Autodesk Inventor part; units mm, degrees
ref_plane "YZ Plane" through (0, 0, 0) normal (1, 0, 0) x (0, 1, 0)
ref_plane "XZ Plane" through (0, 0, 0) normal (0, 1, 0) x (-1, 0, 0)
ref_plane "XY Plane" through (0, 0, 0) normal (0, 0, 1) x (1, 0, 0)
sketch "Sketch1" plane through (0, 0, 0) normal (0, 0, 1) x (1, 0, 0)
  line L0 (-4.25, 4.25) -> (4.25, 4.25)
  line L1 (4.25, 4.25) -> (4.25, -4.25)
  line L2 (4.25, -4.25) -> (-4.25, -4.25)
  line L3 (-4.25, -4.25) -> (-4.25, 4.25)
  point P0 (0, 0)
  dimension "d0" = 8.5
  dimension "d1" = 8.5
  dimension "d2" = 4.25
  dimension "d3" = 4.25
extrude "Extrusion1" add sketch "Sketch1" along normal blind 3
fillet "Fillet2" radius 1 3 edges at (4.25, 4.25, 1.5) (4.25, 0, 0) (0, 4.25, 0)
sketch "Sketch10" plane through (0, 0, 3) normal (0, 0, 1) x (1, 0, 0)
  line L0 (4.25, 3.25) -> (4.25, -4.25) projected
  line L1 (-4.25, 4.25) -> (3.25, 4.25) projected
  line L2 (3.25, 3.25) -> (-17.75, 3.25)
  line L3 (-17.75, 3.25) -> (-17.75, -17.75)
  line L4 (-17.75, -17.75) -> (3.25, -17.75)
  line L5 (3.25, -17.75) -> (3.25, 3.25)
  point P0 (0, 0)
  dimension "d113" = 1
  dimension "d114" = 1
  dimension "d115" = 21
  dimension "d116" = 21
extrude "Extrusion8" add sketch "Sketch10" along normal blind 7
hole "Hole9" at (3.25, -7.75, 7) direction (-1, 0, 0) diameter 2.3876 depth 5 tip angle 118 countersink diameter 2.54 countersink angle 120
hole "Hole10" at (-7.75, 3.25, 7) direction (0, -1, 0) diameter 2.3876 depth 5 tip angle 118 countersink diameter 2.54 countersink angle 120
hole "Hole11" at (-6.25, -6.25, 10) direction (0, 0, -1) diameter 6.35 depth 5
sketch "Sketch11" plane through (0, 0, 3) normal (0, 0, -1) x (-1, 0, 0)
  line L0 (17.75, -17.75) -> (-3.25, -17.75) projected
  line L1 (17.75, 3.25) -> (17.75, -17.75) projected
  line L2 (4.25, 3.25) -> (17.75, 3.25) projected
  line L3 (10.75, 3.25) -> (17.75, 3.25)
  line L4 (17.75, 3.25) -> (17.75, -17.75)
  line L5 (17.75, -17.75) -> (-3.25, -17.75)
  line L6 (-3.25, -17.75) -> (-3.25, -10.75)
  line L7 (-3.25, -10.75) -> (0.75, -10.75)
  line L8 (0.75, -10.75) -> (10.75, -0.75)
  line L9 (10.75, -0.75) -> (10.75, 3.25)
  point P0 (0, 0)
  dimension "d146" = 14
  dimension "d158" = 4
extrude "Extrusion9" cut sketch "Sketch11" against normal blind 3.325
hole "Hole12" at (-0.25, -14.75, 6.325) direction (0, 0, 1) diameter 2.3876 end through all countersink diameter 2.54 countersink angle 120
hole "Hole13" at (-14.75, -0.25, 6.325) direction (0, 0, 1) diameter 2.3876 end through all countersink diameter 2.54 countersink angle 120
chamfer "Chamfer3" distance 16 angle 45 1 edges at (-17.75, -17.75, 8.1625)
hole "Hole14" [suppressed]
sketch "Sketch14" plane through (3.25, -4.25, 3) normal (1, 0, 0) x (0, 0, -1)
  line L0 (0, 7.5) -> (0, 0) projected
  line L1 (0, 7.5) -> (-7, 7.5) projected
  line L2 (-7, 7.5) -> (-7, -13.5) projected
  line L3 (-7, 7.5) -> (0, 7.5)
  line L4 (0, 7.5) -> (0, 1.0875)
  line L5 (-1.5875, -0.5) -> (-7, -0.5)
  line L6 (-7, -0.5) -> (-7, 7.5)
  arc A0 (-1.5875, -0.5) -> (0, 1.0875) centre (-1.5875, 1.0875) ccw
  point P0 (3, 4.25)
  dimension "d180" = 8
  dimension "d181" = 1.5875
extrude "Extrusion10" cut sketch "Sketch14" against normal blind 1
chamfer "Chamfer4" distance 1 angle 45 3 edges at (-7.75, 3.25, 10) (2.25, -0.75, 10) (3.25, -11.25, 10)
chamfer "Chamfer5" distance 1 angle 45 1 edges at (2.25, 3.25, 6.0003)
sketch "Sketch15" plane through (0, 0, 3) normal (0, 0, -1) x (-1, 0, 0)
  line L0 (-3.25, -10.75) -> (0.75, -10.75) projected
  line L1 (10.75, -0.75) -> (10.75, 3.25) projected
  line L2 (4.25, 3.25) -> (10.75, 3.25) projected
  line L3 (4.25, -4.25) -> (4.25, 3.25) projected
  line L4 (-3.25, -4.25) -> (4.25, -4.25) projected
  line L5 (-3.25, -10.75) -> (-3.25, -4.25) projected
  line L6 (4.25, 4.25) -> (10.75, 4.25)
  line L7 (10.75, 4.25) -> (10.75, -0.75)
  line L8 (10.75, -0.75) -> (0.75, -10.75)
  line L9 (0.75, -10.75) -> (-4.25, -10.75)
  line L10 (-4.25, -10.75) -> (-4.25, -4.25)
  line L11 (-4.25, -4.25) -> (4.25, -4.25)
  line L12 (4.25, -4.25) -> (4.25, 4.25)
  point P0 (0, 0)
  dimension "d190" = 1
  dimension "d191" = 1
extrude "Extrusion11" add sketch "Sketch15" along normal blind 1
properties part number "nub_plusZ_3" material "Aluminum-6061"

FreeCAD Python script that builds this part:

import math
import FreeCAD as App
import Part
import Sketcher

V = App.Vector


def edges_at(feature, points):
    """Names of the edges that pass closest to the given points."""
    edges = feature.Shape.Edges
    near = lambda p: min(range(len(edges)), key=lambda i: edges[i].distToShape(Part.Vertex(*p))[0])
    return sorted({f"Edge{near(p) + 1}" for p in points})


def add_polygon(sketch, points):
    """Adds a closed chain of lines whose ends are joined by coincident constraints."""
    first, n = sketch.GeometryCount, len(points)
    for a, b in zip(points, points[1:] + points[:1]):
        sketch.addGeometry(Part.LineSegment(App.Vector(*a, 0), App.Vector(*b, 0)), False)
    for i in range(n):
        sketch.addConstraint(Sketcher.Constraint("Coincident", first + i, 2, first + (i + 1) % n, 1))

doc = App.newDocument("Part")
body = doc.addObject("PartDesign::Body", "Body")

# Sketch on XY plane
sketch1 = body.newObject("Sketcher::SketchObject", "Sketch")
sketch1.AttachmentSupport = (doc.getObject("XY_Plane"), [""])
sketch1.MapMode = "FlatFace"
add_polygon(sketch1, [(4, 4), (-4, 4), (-4, -4), (4, -4)])  # lines 0-3
sketch1.addConstraint([
    Sketcher.Constraint("Horizontal", 0),
    Sketcher.Constraint("Vertical", 1),
    Sketcher.Constraint("Horizontal", 2),
    Sketcher.Constraint("Vertical", 3),
    Sketcher.Constraint("Symmetric", 0, 2, 2, 2, -1, 1),
    Sketcher.Constraint("Equal", 2, 1),
    Sketcher.Constraint("DistanceX", 0, 2, 0, 1, 8.5),
])
pad1 = body.newObject("PartDesign::Pad", "Pad")
pad1.Profile = sketch1
pad1.Length = 3
doc.recompute()

fillet = body.newObject("PartDesign::Fillet", "Fillet")
fillet.Base = (pad1, edges_at(pad1, [(4.25, 4.25, 1.5), (4.25, 0, 0), (0, 4.25, 0)]))
fillet.Radius = 1

# Sketch on XY plane
sketch2 = body.newObject("Sketcher::SketchObject", "Sketch001")
sketch2.AttachmentSupport = (doc.getObject("XY_Plane"), [""])
sketch2.MapMode = "FlatFace"
sketch2.AttachmentOffset = App.Placement(V(0, 0, 3), App.Rotation())
add_polygon(sketch2, [(3, -18), (3, 3), (-18, 3), (-18, -18)])  # lines 0-3
sketch2.addConstraint([
    Sketcher.Constraint("Vertical", 0),
    Sketcher.Constraint("Horizontal", 1),
    Sketcher.Constraint("Vertical", 2),
    Sketcher.Constraint("Horizontal", 3),
    Sketcher.Constraint("Equal", 3, 0),
    Sketcher.Constraint("DistanceX", 1, 2, 1, 1, 21.0),
    Sketcher.Constraint("DistanceX", -1, 1, 0, 2, 3.25),
    Sketcher.Constraint("DistanceY", -1, 1, 0, 2, 3.25),
])
pad2 = body.newObject("PartDesign::Pad", "Pad001")
pad2.Profile = sketch2
pad2.Length = 7

# Sketch on YZ plane
sketch3 = body.newObject("Sketcher::SketchObject", "Sketch002")
sketch3.AttachmentSupport = (doc.getObject("YZ_Plane"), [""])
sketch3.MapMode = "FlatFace"
sketch3.AttachmentOffset = App.Placement(V(0, 0, 3.25), App.Rotation())
sketch3.addGeometry(Part.Circle(V(-7.8, 7, 0), V(0, 0, 1), 1.2), False)
sketch3.addConstraint([
    Sketcher.Constraint("DistanceY", -1, 1, 0, 3, 7.0),
    Sketcher.Constraint("Diameter", 0, 2.3876),
    Sketcher.Constraint("DistanceX", 0, 3, -1, 1, 7.75),
])
doc.recompute()
hole = body.newObject("PartDesign::Hole", "Hole")
hole.Profile = sketch3
hole.ThreadType = "None"
hole.Diameter = 2.3876
hole.DepthType = "Dimension"
hole.Depth = 5
hole.DrillPoint = "Angled"
hole.DrillPointAngle = 118
hole.HoleCutType = "Countersink"
hole.HoleCutDiameter = 2.54
hole.HoleCutCountersinkAngle = 120

# Sketch on XZ plane
sketch4 = body.newObject("Sketcher::SketchObject", "Sketch003")
sketch4.AttachmentSupport = (doc.getObject("XZ_Plane"), [""])
sketch4.MapMode = "FlatFace"
sketch4.AttachmentOffset = App.Placement(V(0, 0, -3.25), App.Rotation())
sketch4.addGeometry(Part.Circle(V(-7.8, 7, 0), V(0, 0, 1), 1.2), False)
sketch4.addConstraint([
    Sketcher.Constraint("DistanceY", -1, 1, 0, 3, 7.0),
    Sketcher.Constraint("Diameter", 0, 2.3876),
    Sketcher.Constraint("DistanceX", 0, 3, -1, 1, 7.75),
])
doc.recompute()
hole2 = body.newObject("PartDesign::Hole", "Hole001")
hole2.Profile = sketch4
hole2.ThreadType = "None"
hole2.Diameter = 2.3876
hole2.DepthType = "Dimension"
hole2.Depth = 5
hole2.DrillPoint = "Angled"
hole2.DrillPointAngle = 118
hole2.HoleCutType = "Countersink"
hole2.HoleCutDiameter = 2.54
hole2.HoleCutCountersinkAngle = 120
hole2.Reversed = True

# Sketch on XY plane
sketch5 = body.newObject("Sketcher::SketchObject", "Sketch004")
sketch5.AttachmentSupport = (doc.getObject("XY_Plane"), [""])
sketch5.MapMode = "FlatFace"
sketch5.AttachmentOffset = App.Placement(V(0, 0, 10), App.Rotation())
sketch5.addGeometry(Part.Circle(V(-6.2, -6.2, 0), V(0, 0, 1), 3.2), False)
sketch5.addConstraint([
    Sketcher.Constraint("Diameter", 0, 6.35),
    Sketcher.Constraint("DistanceX", 0, 3, -1, 1, 6.25),
    Sketcher.Constraint("DistanceY", 0, 3, -1, 1, 6.25),
])
doc.recompute()
hole3 = body.newObject("PartDesign::Hole", "Hole002")
hole3.Profile = sketch5
hole3.ThreadType = "None"
hole3.Diameter = 6.35
hole3.DepthType = "Dimension"
hole3.Depth = 5
hole3.DrillPoint = "Flat"

# Sketch on XY plane
sketch6 = body.newObject("Sketcher::SketchObject", "Sketch005")
sketch6.AttachmentSupport = (doc.getObject("XY_Plane"), [""])
sketch6.MapMode = "FlatFace"
sketch6.AttachmentOffset = App.Placement(V(0, 0, 3), App.Rotation())
add_polygon(sketch6, [(3.2, -17.8), (-17.8, -17.8), (-17.8, 3.2), (-10.8, 3.2), (-10.8, -0.8), (-0.8, -10.8), (3.2, -10.8)])  # lines 0-6
sketch6.addConstraint([
    Sketcher.Constraint("Horizontal", 0),
    Sketcher.Constraint("Vertical", 1),
    Sketcher.Constraint("Horizontal", 2),
    Sketcher.Constraint("Vertical", 3),
    Sketcher.Constraint("Horizontal", 5),
    Sketcher.Constraint("Vertical", 6),
    Sketcher.Constraint("Equal", 0, 1),
    Sketcher.Constraint("Equal", 5, 3),
    Sketcher.Constraint("Equal", 2, 6),
    Sketcher.Constraint("DistanceX", 5, 1, 5, 2, 4.0),
    Sketcher.Constraint("DistanceY", 4, 2, 2, 2, 14.0),
    Sketcher.Constraint("DistanceX", 0, 2, 0, 1, 21.0),
    Sketcher.Constraint("DistanceX", 0, 2, -1, 1, 17.75),
    Sketcher.Constraint("DistanceY", 0, 2, -1, 1, 17.75),
])
pocket1 = body.newObject("PartDesign::Pocket", "Pocket")
pocket1.Profile = sketch6
pocket1.Length = 3.325
pocket1.Reversed = True

# Sketch on XY plane
sketch7 = body.newObject("Sketcher::SketchObject", "Sketch006")
sketch7.AttachmentSupport = (doc.getObject("XY_Plane"), [""])
sketch7.MapMode = "FlatFace"
sketch7.AttachmentOffset = App.Placement(V(0, 0, 6.325), App.Rotation())
sketch7.addGeometry(Part.Circle(V(-0.2, -14.8, 0), V(0, 0, 1), 1.2), False)
sketch7.addConstraint([
    Sketcher.Constraint("Diameter", 0, 2.3876),
    Sketcher.Constraint("DistanceX", 0, 3, -1, 1, 0.25),
    Sketcher.Constraint("DistanceY", 0, 3, -1, 1, 14.75),
])
doc.recompute()
hole4 = body.newObject("PartDesign::Hole", "Hole003")
hole4.Profile = sketch7
hole4.ThreadType = "None"
hole4.Diameter = 2.3876
hole4.DepthType = "ThroughAll"
hole4.HoleCutType = "Countersink"
hole4.HoleCutDiameter = 2.54
hole4.HoleCutCountersinkAngle = 120
hole4.Reversed = True

# Sketch on XY plane
sketch8 = body.newObject("Sketcher::SketchObject", "Sketch007")
sketch8.AttachmentSupport = (doc.getObject("XY_Plane"), [""])
sketch8.MapMode = "FlatFace"
sketch8.AttachmentOffset = App.Placement(V(0, 0, 6.325), App.Rotation())
sketch8.addGeometry(Part.Circle(V(-14.8, -0.2, 0), V(0, 0, 1), 1.2), False)
sketch8.addConstraint([
    Sketcher.Constraint("Diameter", 0, 2.3876),
    Sketcher.Constraint("DistanceX", 0, 3, -1, 1, 14.75),
    Sketcher.Constraint("DistanceY", 0, 3, -1, 1, 0.25),
])
doc.recompute()
hole5 = body.newObject("PartDesign::Hole", "Hole004")
hole5.Profile = sketch8
hole5.ThreadType = "None"
hole5.Diameter = 2.3876
hole5.DepthType = "ThroughAll"
hole5.HoleCutType = "Countersink"
hole5.HoleCutDiameter = 2.54
hole5.HoleCutCountersinkAngle = 120
hole5.Reversed = True
doc.recompute()

chamfer = body.newObject("PartDesign::Chamfer", "Chamfer")
chamfer.Base = (hole5, edges_at(hole5, [(-17.75, -17.75, 8.162)]))
chamfer.Size = 16

# Sketch on YZ plane
sketch9 = body.newObject("Sketcher::SketchObject", "Sketch008")
sketch9.AttachmentSupport = (doc.getObject("YZ_Plane"), [""])
sketch9.MapMode = "FlatFace"
sketch9.AttachmentOffset = App.Placement(V(0, 0, 3.25), App.Rotation())
sketch9.addGeometry([
    Part.LineSegment(V(-3.2, 3, 0), V(3.2, 3, 0)),  # 0
    Part.LineSegment(V(3.2, 3, 0), V(3.2, 10, 0)),  # 1
    Part.LineSegment(V(3.2, 10, 0), V(-4.8, 10, 0)),  # 2
    Part.LineSegment(V(-4.8, 10, 0), V(-4.8, 4.6, 0)),  # 3
    Part.ArcOfCircle(Part.Circle(V(-3.2, 4.6, 0), V(0, 0, 1), 1.6), math.radians(180), math.radians(270)),  # 4
], False)
sketch9.addConstraint([
    Sketcher.Constraint("Coincident", 0, 2, 1, 1),
    Sketcher.Constraint("Coincident", 1, 2, 2, 1),
    Sketcher.Constraint("Coincident", 2, 2, 3, 1),
    Sketcher.Constraint("Tangent", 3, 2, 4, 1),
    Sketcher.Constraint("Tangent", 4, 2, 0, 1),
    Sketcher.Constraint("Horizontal", 0),
    Sketcher.Constraint("Vertical", 1),
    Sketcher.Constraint("Horizontal", 2),
    Sketcher.Constraint("Vertical", 3),
    Sketcher.Constraint("DistanceX", 2, 2, 2, 1, 8.0),
    Sketcher.Constraint("Radius", 4, 1.5875),
    Sketcher.Constraint("DistanceY", 1, 1, 1, 2, 7.0),
    Sketcher.Constraint("DistanceY", -1, 1, 0, 2, 3.0),
    Sketcher.Constraint("DistanceX", -1, 1, 0, 2, 3.25),
])
pocket2 = body.newObject("PartDesign::Pocket", "Pocket001")
pocket2.Profile = sketch9
pocket2.Length = 1
doc.recompute()

chamfer2 = body.newObject("PartDesign::Chamfer", "Chamfer001")
chamfer2.Base = (pocket2, edges_at(pocket2, [(-7.75, 3.25, 10), (2.25, -0.75, 10), (3.25, -11.25, 10)]))
chamfer2.Size = 1
doc.recompute()

chamfer3 = body.newObject("PartDesign::Chamfer", "Chamfer002")
chamfer3.Base = (chamfer2, edges_at(chamfer2, [(2.25, 3.25, 6)]))
chamfer3.Size = 1

# Sketch on XY plane
sketch10 = body.newObject("Sketcher::SketchObject", "Sketch009")
sketch10.AttachmentSupport = (doc.getObject("XY_Plane"), [""])
sketch10.MapMode = "FlatFace"
sketch10.AttachmentOffset = App.Placement(V(0, 0, 3), App.Rotation())
add_polygon(sketch10, [(-4, -4), (4, -4), (4, -11), (-1, -11), (-11, -1), (-11, 4), (-4, 4)])  # lines 0-6
sketch10.addConstraint([
    Sketcher.Constraint("Horizontal", 0),
    Sketcher.Constraint("Vertical", 1),
    Sketcher.Constraint("Horizontal", 2),
    Sketcher.Constraint("Vertical", 4),
    Sketcher.Constraint("Horizontal", 5),
    Sketcher.Constraint("Vertical", 6),
    Sketcher.Constraint("Symmetric", 0, 2, 5, 2, -1, 1),
    Sketcher.Constraint("Equal", 5, 1),
    Sketcher.Constraint("Equal", 2, 4),
    Sketcher.Constraint("Equal", 0, 6),
    Sketcher.Constraint("DistanceX", 2, 2, 2, 1, 5.0),
    Sketcher.Constraint("DistanceX", 0, 1, 0, 2, 8.5),
    Sketcher.Constraint("DistanceX", 5, 1, 5, 2, 6.5),
])
pad3 = body.newObject("PartDesign::Pad", "Pad002")
pad3.Profile = sketch10
pad3.Length = 1
pad3.Reversed = True

doc.recompute()
